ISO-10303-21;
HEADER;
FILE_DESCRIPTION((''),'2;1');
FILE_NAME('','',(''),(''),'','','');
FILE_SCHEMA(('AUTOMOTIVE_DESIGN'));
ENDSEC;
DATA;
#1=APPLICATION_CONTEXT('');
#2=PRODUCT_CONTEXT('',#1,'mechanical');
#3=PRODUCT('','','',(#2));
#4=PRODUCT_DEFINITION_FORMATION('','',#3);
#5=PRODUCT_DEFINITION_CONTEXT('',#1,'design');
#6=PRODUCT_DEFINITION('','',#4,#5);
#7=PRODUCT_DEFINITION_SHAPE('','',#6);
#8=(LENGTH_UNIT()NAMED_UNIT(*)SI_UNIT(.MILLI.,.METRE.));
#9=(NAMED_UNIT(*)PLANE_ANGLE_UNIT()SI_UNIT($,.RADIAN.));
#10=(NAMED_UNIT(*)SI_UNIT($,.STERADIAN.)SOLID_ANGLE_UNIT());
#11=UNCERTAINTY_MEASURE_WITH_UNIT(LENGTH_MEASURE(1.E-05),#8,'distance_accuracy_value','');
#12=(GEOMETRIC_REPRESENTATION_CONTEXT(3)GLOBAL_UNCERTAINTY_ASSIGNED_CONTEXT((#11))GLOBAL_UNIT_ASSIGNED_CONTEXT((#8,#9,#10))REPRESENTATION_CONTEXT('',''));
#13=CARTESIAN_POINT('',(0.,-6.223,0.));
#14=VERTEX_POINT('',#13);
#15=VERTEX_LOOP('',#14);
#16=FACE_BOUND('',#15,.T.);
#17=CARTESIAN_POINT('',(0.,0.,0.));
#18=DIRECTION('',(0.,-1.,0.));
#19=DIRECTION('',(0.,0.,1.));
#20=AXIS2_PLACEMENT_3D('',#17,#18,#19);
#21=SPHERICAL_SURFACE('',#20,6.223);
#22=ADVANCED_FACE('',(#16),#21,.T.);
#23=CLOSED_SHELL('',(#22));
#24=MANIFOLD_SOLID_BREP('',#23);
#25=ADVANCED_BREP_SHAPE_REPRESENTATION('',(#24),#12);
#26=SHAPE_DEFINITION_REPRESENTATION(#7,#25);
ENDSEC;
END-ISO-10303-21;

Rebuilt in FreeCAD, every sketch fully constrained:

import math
import FreeCAD as App
import Part
import Sketcher
from FreeCAD import Vector
Q = App.Units.Quantity

doc = App.newDocument("Part")
params = doc.addObject("Spreadsheet::Sheet", "Params")
for row, (alias, value) in enumerate([
    ("sketch1_radius", "0.245 in"),
    ("revolution_angle", "360 deg"),
], start=1):
    params.set(f"A{row}", alias)
    params.set(f"B{row}", "=" + value)
    params.setAlias(f"B{row}", alias)

body = doc.addObject("PartDesign::Body", "Body")

sketch1 = body.newObject("Sketcher::SketchObject", "Sketch")
sketch1.AttachmentSupport = (doc.getObject("YZ_Plane"), [""])
sketch1.MapMode = "FlatFace"
sketch1.addGeometry([
    Part.LineSegment(Vector(-6, 0, 0), Vector(6, 0, 0)),
    Part.ArcOfCircle(Part.Circle(Vector(0, 0, 0), Vector(0, 0, 1), 6), math.radians(0), math.radians(180)),
], False)
sketch1.addConstraint([
    Sketcher.Constraint("Coincident", 0, 1, 1, 2),
    Sketcher.Constraint("Coincident", 1, 1, 0, 2),
    Sketcher.Constraint("Horizontal", 0),
    Sketcher.Constraint("Coincident", 1, 3, -1, 1),
    Sketcher.Constraint("PointOnObject", 0, 1, -1),
    Sketcher.Constraint("Radius", 1, Q("0.245 in")),
])
sketch1.setExpression("Constraints[5]", "Params.sketch1_radius")
revolution = body.newObject("PartDesign::Revolution", "Revolution")
revolution.Profile = sketch1
revolution.ReferenceAxis = (sketch1, ["H_Axis"])
revolution.setExpression("Angle", "Params.revolution_angle")

doc.recompute()
